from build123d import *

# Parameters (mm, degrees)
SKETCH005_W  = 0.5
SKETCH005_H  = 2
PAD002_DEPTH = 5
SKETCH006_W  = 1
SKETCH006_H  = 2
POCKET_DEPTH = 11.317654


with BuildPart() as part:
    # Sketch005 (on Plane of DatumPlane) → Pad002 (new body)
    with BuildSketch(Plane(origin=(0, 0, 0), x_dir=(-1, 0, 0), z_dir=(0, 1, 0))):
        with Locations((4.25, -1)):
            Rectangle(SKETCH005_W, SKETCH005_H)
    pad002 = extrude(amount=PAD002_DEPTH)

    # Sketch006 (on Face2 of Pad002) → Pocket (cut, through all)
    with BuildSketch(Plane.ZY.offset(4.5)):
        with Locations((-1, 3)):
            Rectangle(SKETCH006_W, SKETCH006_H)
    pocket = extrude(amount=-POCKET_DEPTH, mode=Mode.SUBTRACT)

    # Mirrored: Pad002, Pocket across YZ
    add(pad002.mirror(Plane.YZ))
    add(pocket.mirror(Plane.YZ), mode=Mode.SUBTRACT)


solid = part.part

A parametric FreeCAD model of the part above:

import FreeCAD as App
import Part
import Sketcher
from FreeCAD import Vector

doc = App.newDocument("Part")
body = doc.addObject("PartDesign::Body", "Body")
body.AllowCompound = True

# Sketch on XZ plane
sketch1 = doc.addObject("Sketcher::SketchObject", "Sketch")
body.addObject(sketch1)
sketch1.AttachmentSupport = (doc.XZ_Plane, [""])
sketch1.MapMode = "FlatFace"
sketch1.addGeometry(Part.LineSegment(Vector(-4, 0, 0), Vector(-4, -2, 0)), False)
sketch1.addGeometry(Part.LineSegment(Vector(-4, -2, 0), Vector(-4.5, -2, 0)), False)
sketch1.addGeometry(Part.LineSegment(Vector(-4.5, -2, 0), Vector(-4.5, 0, 0)), False)
sketch1.addGeometry(Part.LineSegment(Vector(-4.5, 0, 0), Vector(-4, 0, 0)), False)
sketch1.addConstraint(Sketcher.Constraint("Coincident", 0, 2, 1, 1))
sketch1.addConstraint(Sketcher.Constraint("Coincident", 1, 2, 2, 1))
sketch1.addConstraint(Sketcher.Constraint("Coincident", 2, 2, 3, 1))
sketch1.addConstraint(Sketcher.Constraint("Coincident", 3, 2, 0, 1))
sketch1.addConstraint(Sketcher.Constraint("Vertical", 0))
sketch1.addConstraint(Sketcher.Constraint("Horizontal", 1))
sketch1.addConstraint(Sketcher.Constraint("Vertical", 2))
sketch1.addConstraint(Sketcher.Constraint("Horizontal", 3))
sketch1.addConstraint(Sketcher.Constraint("PointOnObject", 2, 2, -1))
sketch1.addConstraint(Sketcher.Constraint("DistanceY", 0, 2, 0, 1, 2.0))
sketch1.addConstraint(Sketcher.Constraint("DistanceX", 1, 2, 1, 1, 0.5))
sketch1.addConstraint(Sketcher.Constraint("DistanceX", 0, 2, -1, 1, 4.0))
pad1 = doc.addObject("PartDesign::Pad", "Pad")
body.addObject(pad1)
pad1.Profile = sketch1
pad1.Length = 5
pad1.Reversed = True

# Sketch on YZ plane
sketch2 = doc.addObject("Sketcher::SketchObject", "Sketch001")
body.addObject(sketch2)
sketch2.AttachmentSupport = (doc.YZ_Plane, [""])
sketch2.MapMode = "FlatFace"
sketch2.AttachmentOffset = App.Placement(Vector(0, 0, -4.5), App.Rotation())
sketch2.addGeometry(Part.LineSegment(Vector(4, -1.5, 0), Vector(2, -1.5, 0)), False)
sketch2.addGeometry(Part.LineSegment(Vector(2, -1.5, 0), Vector(2, -0.5, 0)), False)
sketch2.addGeometry(Part.LineSegment(Vector(2, -0.5, 0), Vector(4, -0.5, 0)), False)
sketch2.addGeometry(Part.LineSegment(Vector(4, -0.5, 0), Vector(4, -1.5, 0)), False)
sketch2.addConstraint(Sketcher.Constraint("Coincident", 0, 2, 1, 1))
sketch2.addConstraint(Sketcher.Constraint("Coincident", 1, 2, 2, 1))
sketch2.addConstraint(Sketcher.Constraint("Coincident", 2, 2, 3, 1))
sketch2.addConstraint(Sketcher.Constraint("Coincident", 3, 2, 0, 1))
sketch2.addConstraint(Sketcher.Constraint("Horizontal", 0))
sketch2.addConstraint(Sketcher.Constraint("Vertical", 1))
sketch2.addConstraint(Sketcher.Constraint("Horizontal", 2))
sketch2.addConstraint(Sketcher.Constraint("Vertical", 3))
sketch2.addConstraint(Sketcher.Constraint("DistanceX", 0, 2, 0, 1, 2.0))
sketch2.addConstraint(Sketcher.Constraint("DistanceY", 1, 1, 1, 2, 1.0))
sketch2.addConstraint(Sketcher.Constraint("DistanceX", -1, 1, 0, 2, 2.0))
sketch2.addConstraint(Sketcher.Constraint("DistanceY", 0, 2, -1, 1, 1.5))
pocket1 = doc.addObject("PartDesign::Pocket", "Pocket")
body.addObject(pocket1)
pocket1.Profile = sketch2
pocket1.Type = "ThroughAll"
pocket1.Reversed = True
doc.recompute()

mirrored = doc.addObject("PartDesign::Mirrored", "Mirrored")
body.addObject(mirrored)
mirrored.Originals = [pad1, pocket1]
mirrored.MirrorPlane = (doc.YZ_Plane, [""])
body.Tip = mirrored

doc.recompute()
